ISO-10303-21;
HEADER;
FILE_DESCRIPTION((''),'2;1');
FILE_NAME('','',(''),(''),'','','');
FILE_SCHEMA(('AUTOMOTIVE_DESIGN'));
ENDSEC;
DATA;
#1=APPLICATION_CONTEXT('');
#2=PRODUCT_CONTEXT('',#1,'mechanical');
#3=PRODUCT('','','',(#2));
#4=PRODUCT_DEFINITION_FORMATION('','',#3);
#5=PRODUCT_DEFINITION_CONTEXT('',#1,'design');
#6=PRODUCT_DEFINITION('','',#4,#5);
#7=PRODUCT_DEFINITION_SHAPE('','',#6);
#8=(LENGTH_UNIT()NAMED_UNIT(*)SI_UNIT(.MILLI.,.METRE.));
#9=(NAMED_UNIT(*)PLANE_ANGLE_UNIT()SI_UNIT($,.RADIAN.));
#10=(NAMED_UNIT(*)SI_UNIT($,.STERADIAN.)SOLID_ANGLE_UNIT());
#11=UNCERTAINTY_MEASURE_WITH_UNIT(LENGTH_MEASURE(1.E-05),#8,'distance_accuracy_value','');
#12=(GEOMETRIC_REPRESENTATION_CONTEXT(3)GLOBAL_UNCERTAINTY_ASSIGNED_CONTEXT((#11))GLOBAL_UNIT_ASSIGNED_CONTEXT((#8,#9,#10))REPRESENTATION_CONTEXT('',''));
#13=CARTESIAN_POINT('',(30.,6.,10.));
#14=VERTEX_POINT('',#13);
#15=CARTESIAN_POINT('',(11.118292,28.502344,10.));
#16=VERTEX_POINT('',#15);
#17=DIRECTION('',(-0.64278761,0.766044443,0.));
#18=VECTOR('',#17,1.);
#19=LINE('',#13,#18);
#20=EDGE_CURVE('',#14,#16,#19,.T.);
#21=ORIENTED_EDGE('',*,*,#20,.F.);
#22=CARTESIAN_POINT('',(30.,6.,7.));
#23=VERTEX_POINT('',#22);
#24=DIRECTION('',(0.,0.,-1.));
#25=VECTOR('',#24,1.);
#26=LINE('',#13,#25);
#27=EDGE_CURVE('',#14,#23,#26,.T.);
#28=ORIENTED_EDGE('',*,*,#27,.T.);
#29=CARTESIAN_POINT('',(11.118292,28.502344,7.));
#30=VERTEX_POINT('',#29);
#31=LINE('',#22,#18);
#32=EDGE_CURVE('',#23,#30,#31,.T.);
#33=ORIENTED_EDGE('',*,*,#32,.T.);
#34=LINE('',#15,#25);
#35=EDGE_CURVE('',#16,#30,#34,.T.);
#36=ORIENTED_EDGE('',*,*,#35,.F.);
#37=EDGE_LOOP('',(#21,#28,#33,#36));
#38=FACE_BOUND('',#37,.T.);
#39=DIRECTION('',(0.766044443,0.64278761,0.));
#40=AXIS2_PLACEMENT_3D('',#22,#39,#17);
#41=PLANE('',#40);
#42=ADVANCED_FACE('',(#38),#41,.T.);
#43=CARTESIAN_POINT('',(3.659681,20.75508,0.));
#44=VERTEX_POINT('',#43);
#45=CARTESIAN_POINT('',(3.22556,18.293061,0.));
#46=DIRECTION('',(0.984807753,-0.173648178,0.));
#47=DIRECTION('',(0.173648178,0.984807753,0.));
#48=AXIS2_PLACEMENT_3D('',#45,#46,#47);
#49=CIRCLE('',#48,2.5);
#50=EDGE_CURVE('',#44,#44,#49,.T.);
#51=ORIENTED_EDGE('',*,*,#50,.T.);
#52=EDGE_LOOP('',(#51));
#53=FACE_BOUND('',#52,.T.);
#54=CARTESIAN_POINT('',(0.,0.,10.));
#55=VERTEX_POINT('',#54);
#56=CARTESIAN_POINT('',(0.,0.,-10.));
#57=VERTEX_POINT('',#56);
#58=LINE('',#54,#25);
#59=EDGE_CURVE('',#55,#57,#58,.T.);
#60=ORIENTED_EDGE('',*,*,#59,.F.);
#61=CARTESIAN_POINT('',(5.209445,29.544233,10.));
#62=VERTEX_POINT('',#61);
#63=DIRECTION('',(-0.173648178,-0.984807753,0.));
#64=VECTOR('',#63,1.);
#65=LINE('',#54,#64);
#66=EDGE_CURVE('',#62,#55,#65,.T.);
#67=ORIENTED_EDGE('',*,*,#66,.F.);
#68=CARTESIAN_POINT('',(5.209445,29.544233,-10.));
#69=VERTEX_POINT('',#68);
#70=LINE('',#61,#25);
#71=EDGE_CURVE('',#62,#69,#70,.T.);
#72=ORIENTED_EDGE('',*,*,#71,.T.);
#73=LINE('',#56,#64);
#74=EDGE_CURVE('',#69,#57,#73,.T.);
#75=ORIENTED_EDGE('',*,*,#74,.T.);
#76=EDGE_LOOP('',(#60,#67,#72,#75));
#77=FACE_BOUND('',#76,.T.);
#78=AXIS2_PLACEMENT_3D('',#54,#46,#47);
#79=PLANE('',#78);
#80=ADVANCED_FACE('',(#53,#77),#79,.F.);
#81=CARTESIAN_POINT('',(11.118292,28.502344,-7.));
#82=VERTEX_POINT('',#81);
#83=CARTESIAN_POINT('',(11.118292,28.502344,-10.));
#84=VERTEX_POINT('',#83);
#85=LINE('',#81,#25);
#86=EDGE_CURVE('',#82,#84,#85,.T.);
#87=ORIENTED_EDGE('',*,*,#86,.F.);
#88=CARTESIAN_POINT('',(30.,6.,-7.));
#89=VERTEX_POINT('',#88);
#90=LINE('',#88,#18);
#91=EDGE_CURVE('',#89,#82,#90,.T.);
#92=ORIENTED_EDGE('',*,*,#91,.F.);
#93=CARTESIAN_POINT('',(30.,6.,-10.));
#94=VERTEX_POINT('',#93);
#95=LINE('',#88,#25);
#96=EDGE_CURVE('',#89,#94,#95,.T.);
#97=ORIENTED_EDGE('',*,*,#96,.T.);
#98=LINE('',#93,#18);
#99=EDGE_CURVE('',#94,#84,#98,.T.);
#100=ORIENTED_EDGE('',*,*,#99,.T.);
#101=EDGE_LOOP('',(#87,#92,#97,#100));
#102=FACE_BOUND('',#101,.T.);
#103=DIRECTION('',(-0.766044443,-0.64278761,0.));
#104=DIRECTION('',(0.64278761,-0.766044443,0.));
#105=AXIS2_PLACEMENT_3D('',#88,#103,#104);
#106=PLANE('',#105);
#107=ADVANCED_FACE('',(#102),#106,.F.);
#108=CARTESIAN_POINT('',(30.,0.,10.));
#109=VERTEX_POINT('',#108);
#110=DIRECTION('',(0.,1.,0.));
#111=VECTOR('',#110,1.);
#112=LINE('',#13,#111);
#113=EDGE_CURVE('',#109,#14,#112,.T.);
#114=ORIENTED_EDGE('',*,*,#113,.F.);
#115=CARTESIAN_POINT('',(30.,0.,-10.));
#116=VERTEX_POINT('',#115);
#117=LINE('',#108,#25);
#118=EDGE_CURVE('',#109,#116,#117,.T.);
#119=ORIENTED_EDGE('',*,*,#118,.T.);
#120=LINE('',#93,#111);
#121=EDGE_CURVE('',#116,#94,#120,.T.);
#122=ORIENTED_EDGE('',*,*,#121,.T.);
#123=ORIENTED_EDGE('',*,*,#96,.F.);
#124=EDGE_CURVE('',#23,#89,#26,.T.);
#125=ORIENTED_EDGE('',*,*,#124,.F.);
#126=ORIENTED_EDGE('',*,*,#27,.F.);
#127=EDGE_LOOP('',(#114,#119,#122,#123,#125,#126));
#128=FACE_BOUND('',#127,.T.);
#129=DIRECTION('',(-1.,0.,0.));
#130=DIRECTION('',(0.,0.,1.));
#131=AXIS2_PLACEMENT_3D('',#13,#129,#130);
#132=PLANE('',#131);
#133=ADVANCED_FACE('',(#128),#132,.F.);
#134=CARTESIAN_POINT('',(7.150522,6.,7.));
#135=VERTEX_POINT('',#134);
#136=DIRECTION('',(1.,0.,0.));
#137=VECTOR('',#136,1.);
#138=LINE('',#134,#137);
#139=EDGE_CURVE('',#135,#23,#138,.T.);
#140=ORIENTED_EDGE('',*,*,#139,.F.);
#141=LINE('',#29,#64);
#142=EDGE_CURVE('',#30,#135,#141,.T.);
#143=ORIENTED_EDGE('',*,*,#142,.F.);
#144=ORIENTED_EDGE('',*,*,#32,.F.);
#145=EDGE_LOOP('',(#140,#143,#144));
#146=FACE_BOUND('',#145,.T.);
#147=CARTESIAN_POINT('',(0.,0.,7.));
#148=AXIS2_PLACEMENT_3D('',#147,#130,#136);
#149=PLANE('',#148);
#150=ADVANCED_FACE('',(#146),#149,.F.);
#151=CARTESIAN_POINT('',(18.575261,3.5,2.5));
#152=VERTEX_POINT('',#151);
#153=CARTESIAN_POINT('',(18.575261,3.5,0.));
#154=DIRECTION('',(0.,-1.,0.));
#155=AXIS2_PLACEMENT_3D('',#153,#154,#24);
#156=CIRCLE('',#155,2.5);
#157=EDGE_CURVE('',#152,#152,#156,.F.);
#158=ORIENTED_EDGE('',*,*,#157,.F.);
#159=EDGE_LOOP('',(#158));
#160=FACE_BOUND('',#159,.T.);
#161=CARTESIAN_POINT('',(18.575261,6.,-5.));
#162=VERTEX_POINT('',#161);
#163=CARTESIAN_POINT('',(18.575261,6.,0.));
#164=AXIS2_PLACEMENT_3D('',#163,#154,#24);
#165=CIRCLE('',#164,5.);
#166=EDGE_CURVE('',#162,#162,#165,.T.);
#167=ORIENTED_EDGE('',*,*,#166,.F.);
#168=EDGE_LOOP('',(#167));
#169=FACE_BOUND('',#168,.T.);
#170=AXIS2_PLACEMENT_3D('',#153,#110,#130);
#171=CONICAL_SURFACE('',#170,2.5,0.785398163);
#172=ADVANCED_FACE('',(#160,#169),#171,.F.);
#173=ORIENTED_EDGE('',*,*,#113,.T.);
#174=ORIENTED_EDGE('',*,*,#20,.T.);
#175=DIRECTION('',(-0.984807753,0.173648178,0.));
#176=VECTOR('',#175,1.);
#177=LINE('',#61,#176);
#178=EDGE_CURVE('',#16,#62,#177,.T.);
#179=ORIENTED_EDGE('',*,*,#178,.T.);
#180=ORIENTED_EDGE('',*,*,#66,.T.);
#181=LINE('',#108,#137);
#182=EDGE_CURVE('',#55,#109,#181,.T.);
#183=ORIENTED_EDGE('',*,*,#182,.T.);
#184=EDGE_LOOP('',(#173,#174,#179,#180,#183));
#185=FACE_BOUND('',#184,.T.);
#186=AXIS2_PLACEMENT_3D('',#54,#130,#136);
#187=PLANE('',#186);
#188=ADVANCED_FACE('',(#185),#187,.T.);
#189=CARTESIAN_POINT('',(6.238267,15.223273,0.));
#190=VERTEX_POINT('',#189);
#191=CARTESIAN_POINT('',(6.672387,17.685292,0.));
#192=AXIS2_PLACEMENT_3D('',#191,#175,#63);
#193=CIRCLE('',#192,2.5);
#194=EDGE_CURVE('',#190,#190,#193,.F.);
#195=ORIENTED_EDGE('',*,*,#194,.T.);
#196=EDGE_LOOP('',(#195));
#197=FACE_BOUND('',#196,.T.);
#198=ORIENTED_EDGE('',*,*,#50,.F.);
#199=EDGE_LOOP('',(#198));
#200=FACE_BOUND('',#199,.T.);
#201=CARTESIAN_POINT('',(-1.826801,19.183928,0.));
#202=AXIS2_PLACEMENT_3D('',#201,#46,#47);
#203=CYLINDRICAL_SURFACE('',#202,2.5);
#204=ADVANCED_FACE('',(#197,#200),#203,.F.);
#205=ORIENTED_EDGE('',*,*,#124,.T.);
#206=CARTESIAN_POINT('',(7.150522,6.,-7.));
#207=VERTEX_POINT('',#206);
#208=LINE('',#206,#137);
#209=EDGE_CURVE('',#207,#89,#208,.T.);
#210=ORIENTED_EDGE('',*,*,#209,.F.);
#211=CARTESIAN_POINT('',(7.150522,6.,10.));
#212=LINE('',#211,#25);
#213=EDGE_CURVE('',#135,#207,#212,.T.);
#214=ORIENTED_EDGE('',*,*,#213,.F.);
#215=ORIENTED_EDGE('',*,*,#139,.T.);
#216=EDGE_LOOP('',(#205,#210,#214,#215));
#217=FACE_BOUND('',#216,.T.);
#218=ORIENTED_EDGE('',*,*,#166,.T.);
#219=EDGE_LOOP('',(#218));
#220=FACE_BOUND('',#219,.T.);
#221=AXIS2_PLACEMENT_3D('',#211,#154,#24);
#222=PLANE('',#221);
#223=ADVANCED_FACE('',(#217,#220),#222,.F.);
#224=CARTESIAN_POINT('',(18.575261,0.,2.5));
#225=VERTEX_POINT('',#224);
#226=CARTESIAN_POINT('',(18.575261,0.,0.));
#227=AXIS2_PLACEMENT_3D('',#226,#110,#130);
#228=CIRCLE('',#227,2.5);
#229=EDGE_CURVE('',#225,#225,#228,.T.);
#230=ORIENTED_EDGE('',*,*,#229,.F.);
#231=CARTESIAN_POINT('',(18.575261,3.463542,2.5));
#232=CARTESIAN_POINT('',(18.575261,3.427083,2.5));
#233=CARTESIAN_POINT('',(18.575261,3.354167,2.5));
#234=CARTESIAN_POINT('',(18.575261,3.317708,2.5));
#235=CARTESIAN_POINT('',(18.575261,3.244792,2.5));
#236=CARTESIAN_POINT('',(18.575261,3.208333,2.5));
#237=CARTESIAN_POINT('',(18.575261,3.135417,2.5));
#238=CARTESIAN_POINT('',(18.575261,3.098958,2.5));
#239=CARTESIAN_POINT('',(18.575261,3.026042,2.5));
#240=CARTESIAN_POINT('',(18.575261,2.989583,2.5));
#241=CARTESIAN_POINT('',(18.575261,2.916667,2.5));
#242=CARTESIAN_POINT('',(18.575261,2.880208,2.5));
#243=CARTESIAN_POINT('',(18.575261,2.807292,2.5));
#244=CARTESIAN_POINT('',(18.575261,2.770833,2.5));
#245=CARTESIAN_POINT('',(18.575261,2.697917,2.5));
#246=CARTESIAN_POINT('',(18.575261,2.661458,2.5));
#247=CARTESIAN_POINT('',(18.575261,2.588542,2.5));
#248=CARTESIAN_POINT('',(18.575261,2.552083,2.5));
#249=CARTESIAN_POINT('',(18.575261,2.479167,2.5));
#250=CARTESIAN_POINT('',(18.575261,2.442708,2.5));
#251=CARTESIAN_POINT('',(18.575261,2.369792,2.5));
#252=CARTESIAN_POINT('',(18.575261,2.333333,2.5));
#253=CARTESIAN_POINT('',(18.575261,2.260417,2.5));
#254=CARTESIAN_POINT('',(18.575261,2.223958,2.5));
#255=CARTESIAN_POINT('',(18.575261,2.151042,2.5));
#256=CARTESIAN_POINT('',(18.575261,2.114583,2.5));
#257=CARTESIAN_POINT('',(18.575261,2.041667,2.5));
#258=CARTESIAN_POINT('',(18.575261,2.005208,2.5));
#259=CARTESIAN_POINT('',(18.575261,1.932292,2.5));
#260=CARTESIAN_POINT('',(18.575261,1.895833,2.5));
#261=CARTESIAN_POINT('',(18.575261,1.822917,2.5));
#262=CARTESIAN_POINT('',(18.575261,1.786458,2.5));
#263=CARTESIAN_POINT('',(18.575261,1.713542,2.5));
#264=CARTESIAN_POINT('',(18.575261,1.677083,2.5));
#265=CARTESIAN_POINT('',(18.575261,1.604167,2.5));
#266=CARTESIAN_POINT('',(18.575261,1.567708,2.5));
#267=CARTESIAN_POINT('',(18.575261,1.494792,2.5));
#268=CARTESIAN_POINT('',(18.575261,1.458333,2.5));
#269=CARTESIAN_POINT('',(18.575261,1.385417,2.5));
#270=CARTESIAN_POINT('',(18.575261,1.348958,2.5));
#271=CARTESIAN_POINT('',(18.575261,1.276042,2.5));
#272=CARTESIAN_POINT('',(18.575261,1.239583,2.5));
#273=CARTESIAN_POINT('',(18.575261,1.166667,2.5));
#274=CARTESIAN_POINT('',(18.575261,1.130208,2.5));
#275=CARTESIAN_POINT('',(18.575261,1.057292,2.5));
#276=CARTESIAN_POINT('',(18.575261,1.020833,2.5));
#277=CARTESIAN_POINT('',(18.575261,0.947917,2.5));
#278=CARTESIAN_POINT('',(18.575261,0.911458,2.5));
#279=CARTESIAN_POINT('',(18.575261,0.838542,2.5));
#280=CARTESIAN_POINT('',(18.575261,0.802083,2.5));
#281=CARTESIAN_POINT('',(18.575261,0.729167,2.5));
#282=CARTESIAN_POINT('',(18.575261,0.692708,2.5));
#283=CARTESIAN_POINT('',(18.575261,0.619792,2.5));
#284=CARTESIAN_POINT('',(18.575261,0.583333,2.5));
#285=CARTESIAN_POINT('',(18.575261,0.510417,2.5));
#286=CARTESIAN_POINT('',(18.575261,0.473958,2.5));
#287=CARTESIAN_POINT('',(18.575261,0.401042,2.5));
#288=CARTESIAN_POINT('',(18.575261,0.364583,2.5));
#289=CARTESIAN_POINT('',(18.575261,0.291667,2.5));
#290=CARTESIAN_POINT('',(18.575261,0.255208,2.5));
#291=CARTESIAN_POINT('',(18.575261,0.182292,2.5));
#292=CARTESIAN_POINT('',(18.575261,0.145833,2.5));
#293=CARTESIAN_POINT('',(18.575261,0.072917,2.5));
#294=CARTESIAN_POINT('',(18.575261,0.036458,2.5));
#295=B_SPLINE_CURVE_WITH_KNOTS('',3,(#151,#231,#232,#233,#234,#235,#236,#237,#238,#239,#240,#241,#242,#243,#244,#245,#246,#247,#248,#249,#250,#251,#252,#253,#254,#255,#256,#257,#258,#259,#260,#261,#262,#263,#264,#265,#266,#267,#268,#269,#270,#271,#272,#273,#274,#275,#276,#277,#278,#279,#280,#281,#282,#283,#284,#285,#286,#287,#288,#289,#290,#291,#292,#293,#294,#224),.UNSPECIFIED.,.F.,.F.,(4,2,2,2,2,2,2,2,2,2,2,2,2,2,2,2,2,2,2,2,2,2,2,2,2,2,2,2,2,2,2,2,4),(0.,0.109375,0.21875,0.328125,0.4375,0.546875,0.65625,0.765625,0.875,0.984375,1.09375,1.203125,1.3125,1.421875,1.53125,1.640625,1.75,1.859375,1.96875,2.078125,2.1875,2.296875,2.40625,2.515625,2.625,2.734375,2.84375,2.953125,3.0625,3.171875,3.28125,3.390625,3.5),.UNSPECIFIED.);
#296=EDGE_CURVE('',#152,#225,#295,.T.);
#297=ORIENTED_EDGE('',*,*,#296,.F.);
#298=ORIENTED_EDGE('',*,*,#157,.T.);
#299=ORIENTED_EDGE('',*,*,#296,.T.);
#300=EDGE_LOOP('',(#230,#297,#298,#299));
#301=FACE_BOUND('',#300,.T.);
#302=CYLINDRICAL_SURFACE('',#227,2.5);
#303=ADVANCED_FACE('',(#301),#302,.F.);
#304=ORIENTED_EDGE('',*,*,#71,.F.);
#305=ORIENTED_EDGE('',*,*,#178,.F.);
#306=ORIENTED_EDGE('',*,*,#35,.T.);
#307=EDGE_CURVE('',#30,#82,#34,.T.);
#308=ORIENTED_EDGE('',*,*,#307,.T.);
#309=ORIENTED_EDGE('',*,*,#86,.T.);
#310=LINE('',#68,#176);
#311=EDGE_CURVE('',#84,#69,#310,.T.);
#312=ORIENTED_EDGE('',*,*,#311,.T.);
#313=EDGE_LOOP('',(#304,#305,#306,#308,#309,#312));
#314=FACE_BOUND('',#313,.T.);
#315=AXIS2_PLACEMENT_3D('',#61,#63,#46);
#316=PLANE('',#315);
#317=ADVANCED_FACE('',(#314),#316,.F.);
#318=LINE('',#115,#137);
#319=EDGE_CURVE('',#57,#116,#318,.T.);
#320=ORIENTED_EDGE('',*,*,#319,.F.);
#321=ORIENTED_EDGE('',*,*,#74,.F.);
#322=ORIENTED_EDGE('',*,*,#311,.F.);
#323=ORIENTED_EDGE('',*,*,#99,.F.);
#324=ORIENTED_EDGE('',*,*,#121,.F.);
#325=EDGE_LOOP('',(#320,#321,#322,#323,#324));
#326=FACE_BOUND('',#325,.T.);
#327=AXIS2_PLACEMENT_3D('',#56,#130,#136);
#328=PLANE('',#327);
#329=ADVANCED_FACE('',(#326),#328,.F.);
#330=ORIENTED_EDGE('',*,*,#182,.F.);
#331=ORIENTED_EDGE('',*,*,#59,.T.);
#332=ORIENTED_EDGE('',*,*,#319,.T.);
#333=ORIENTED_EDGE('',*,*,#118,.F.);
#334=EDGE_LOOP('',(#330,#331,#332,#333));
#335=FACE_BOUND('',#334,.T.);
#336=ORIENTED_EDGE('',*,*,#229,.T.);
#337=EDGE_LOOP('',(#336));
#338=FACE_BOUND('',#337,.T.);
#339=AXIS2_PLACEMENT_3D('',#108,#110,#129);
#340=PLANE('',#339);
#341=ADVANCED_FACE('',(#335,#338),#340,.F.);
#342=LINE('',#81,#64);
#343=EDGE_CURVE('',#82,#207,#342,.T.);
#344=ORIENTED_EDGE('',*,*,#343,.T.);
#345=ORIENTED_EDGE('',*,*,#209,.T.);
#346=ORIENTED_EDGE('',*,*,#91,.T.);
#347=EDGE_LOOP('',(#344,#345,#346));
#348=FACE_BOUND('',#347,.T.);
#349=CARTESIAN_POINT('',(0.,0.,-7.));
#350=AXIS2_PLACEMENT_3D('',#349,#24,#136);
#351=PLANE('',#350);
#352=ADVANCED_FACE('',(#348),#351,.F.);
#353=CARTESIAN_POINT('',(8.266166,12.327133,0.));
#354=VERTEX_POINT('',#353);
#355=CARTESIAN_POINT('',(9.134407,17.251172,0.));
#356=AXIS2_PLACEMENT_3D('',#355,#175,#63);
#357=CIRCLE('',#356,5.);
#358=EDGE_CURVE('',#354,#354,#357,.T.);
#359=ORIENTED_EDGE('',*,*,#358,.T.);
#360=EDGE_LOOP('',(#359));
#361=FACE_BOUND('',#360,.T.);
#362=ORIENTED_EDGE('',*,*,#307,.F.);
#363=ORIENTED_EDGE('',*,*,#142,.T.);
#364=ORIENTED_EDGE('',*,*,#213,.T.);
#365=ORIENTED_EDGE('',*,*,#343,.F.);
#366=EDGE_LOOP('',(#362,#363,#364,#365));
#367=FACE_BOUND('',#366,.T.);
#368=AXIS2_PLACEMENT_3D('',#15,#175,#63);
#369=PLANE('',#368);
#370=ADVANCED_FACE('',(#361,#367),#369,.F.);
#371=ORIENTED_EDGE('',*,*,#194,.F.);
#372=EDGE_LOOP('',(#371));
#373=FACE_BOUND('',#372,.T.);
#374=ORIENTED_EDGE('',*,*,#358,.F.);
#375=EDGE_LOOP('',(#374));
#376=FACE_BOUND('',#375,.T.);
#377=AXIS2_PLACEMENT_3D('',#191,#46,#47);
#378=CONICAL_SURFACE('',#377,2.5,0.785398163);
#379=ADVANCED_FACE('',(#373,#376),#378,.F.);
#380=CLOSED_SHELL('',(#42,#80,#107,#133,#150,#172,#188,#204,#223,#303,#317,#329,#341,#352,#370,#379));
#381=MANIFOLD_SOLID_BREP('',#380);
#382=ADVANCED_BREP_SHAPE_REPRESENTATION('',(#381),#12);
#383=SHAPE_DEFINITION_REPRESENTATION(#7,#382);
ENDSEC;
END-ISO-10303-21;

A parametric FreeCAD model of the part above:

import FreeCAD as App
import Part
import Sketcher
Q = App.Units.Quantity


def edges_at(feature, points):
    """Names of the edges that pass closest to the given points."""
    edges = feature.Shape.Edges
    near = lambda p: min(range(len(edges)), key=lambda i: edges[i].distToShape(Part.Vertex(*p))[0])
    return sorted({f"Edge{near(p) + 1}" for p in points})


def add_polygon(sketch, points):
    """Adds a closed chain of lines whose ends are joined by coincident constraints."""
    first, n = sketch.GeometryCount, len(points)
    for a, b in zip(points, points[1:] + points[:1]):
        sketch.addGeometry(Part.LineSegment(App.Vector(*a, 0), App.Vector(*b, 0)), False)
    for i in range(n):
        sketch.addConstraint(Sketcher.Constraint("Coincident", first + i, 2, first + (i + 1) % n, 1))

doc = App.newDocument("Part")
body = doc.addObject("PartDesign::Body", "Body")

sketch1 = body.newObject("Sketcher::SketchObject", "Sketch")
sketch1.AttachmentSupport = (doc.getObject("XY_Plane"), [""])
sketch1.MapMode = "FlatFace"
add_polygon(sketch1, [(5, 30), (0, 0), (30, 0), (30, 6), (7, 6), (11, 29)])
sketch1.addConstraint(Sketcher.Constraint("Horizontal", 1))
sketch1.addConstraint(Sketcher.Constraint("Vertical", 2))
sketch1.addConstraint(Sketcher.Constraint("Horizontal", 3))
sketch1.addConstraint(Sketcher.Constraint("Coincident", 0, 2, -1, 1))
sketch1.addConstraint(Sketcher.Constraint("Parallel", 0, 4))
sketch1.addConstraint(Sketcher.Constraint("Perpendicular", 4, 5))
sketch1.addConstraint(Sketcher.Constraint("DistanceX", 1, 1, 1, 2, 30.0))
sketch1.addConstraint(Sketcher.Constraint("DistanceY", 2, 1, 2, 2, 6.0))
sketch1.addConstraint(Sketcher.Constraint("Angle", 0, Q("-100 deg")))
sketch1.addConstraint(Sketcher.Constraint("Distance", 0, 30.0))
sketch1.addConstraint(Sketcher.Constraint("Distance", 5, 6.0))
pad1 = body.newObject("PartDesign::Pad", "Pad")
pad1.Profile = sketch1
pad1.Length = 20
pad1.Midplane = True

sketch2 = body.newObject("Sketcher::SketchObject", "Sketch001")
sketch2.AttachmentSupport = (doc.getObject("XY_Plane"), [""])
sketch2.MapMode = "FlatFace"
sketch2.AttachmentOffset = App.Placement(App.Vector(0, 0, 10), App.Rotation())
add_polygon(sketch2, [(11, 29), (7, 6), (30, 6)])
sketch2.addConstraint(Sketcher.Constraint("Horizontal", 1))
sketch2.addConstraint(Sketcher.Constraint("Angle", 0, Q("-100 deg")))
sketch2.addConstraint(Sketcher.Constraint("Angle", 2, Q("130 deg")))
sketch2.addConstraint(Sketcher.Constraint("DistanceY", -1, 1, 0, 2, 6.0))
sketch2.addConstraint(Sketcher.Constraint("DistanceX", -1, 1, 1, 2, 30.0))
sketch2.addConstraint(Sketcher.Constraint("DistanceX", 1, 1, 1, 2, 22.849478))
pad2 = body.newObject("PartDesign::Pad", "Pad001")
pad2.Profile = sketch2
pad2.Length = 3
pad2.Reversed = True
doc.recompute()

mirrored = body.newObject("PartDesign::Mirrored", "Mirrored")
mirrored.Originals = [pad2]
mirrored.MirrorPlane = (doc.getObject("XY_Plane"), [""])
body.Tip = mirrored

sketch3 = body.newObject("Sketcher::SketchObject", "Sketch002")
sketch3.Placement = App.Placement(App.Vector(5.908847, -1.041889, 0), App.Rotation(App.Vector(0, 0, -1), App.Vector(0.173648178, 0.984807753, 0), App.Vector(0.984807753, -0.173648178, 0), "ZXY"))
sketch3.addGeometry(Part.Circle(App.Vector(0, 18.6, 0), App.Vector(0, 0, 1), 2.5), False)
sketch3.addConstraint(Sketcher.Constraint("PointOnObject", 0, 3, -2))
sketch3.addConstraint(Sketcher.Constraint("Diameter", 0, 5.0))
sketch3.addConstraint(Sketcher.Constraint("DistanceY", -1, 1, 0, 3, 18.575261))
pocket1 = body.newObject("PartDesign::Pocket", "Pocket")
pocket1.Profile = sketch3
pocket1.Type = "ThroughAll"

sketch4 = body.newObject("Sketcher::SketchObject", "Sketch003")
sketch4.AttachmentSupport = (doc.getObject("XZ_Plane"), [""])
sketch4.MapMode = "FlatFace"
sketch4.AttachmentOffset = App.Placement(App.Vector(0, 0, -6), App.Rotation())
sketch4.addGeometry(Part.Circle(App.Vector(18.6, 0, 0), App.Vector(0, 0, 1), 2.5), False)
sketch4.addConstraint(Sketcher.Constraint("PointOnObject", 0, 3, -1))
sketch4.addConstraint(Sketcher.Constraint("Diameter", 0, 5.0))
sketch4.addConstraint(Sketcher.Constraint("DistanceX", -1, 1, 0, 3, 18.575261))
pocket2 = body.newObject("PartDesign::Pocket", "Pocket001")
pocket2.Profile = sketch4
pocket2.Type = "ThroughAll"
pocket2.Reversed = True
doc.recompute()

chamfer = body.newObject("PartDesign::Chamfer", "Chamfer")
chamfer.Base = (pocket2, edges_at(pocket2, [(8.7, 14.789, 0), (18.575, 6, -2.5)]))
chamfer.Size = 2.5

doc.recompute()
